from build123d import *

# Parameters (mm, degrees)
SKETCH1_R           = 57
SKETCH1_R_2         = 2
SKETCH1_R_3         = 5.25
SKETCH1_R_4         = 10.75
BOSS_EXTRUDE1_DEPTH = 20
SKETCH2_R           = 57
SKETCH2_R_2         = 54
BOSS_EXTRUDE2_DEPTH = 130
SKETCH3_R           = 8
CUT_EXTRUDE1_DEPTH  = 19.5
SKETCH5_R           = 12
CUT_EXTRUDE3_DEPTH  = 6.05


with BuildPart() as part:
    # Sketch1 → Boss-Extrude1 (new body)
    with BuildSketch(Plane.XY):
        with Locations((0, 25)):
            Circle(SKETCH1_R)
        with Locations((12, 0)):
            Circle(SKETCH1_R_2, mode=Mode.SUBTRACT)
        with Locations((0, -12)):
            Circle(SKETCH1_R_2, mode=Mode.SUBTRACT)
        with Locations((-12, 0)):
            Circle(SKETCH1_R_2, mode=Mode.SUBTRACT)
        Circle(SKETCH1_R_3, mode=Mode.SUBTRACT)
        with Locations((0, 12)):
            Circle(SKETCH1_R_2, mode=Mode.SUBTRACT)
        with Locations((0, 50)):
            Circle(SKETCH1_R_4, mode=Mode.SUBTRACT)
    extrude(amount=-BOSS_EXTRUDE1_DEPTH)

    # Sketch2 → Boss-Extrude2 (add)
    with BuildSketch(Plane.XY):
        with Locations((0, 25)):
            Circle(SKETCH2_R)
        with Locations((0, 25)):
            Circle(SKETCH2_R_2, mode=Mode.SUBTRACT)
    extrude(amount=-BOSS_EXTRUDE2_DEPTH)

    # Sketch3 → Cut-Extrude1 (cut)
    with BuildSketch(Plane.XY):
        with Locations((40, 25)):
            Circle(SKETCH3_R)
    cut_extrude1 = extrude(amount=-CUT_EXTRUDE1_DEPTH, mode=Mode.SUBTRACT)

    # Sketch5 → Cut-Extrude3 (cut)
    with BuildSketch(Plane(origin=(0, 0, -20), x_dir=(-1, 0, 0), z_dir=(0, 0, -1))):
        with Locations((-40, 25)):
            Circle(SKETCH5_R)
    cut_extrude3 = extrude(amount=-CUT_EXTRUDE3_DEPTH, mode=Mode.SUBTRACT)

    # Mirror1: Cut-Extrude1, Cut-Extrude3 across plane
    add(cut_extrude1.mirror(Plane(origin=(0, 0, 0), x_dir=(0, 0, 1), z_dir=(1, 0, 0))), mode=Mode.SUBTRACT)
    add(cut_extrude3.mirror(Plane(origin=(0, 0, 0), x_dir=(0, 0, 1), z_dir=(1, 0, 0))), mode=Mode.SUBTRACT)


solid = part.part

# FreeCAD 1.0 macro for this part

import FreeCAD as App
import Part
import Sketcher
from FreeCAD import Vector

doc = App.newDocument("Part")
body = doc.addObject("PartDesign::Body", "Body")

sketch1 = body.newObject("Sketcher::SketchObject", "Sketch")
sketch1.AttachmentSupport = (doc.getObject("XY_Plane"), [""])
sketch1.MapMode = "FlatFace"
sketch1.addGeometry([
    Part.Circle(Vector(0, 25, 0), Vector(0, 0, 1), 57),
    Part.Circle(Vector(-12, 0, 0), Vector(0, 0, 1), 2),
    Part.Circle(Vector(0, -12, 0), Vector(0, 0, 1), 2),
    Part.Circle(Vector(0, 0, 0), Vector(0, 0, 1), 5.2),
    Part.Circle(Vector(12, 0, 0), Vector(0, 0, 1), 2),
    Part.Circle(Vector(0, 12, 0), Vector(0, 0, 1), 2),
    Part.Circle(Vector(0, 50, 0), Vector(0, 0, 1), 10.8),
], False)
sketch1.addConstraint([
    Sketcher.Constraint("Coincident", 3, 3, -1, 1),
    Sketcher.Constraint("Equal", 1, 2),
    Sketcher.Constraint("Equal", 2, 4),
    Sketcher.Constraint("Equal", 4, 5),
    Sketcher.Constraint("Symmetric", 1, 3, 4, 3, -1, 1),
    Sketcher.Constraint("Symmetric", 2, 3, 5, 3, -1, 1),
    Sketcher.Constraint("PointOnObject", 0, 3, -2),
    Sketcher.Constraint("PointOnObject", 1, 3, -1),
    Sketcher.Constraint("PointOnObject", 2, 3, -2),
    Sketcher.Constraint("PointOnObject", 6, 3, -2),
    Sketcher.Constraint("Diameter", 0, 114.0),
    Sketcher.Constraint("Diameter", 1, 4.0),
    Sketcher.Constraint("Diameter", 3, 10.5),
    Sketcher.Constraint("Diameter", 6, 21.5),
    Sketcher.Constraint("DistanceY", -1, 1, 0, 3, 25.0),
    Sketcher.Constraint("DistanceX", 1, 3, -1, 1, 12.0),
    Sketcher.Constraint("DistanceY", 2, 3, -1, 1, 12.0),
    Sketcher.Constraint("DistanceY", -1, 1, 6, 3, 50.0),
])
pad1 = body.newObject("PartDesign::Pad", "Pad")
pad1.Profile = sketch1
pad1.Length = 20
pad1.Reversed = True

sketch2 = body.newObject("Sketcher::SketchObject", "Sketch001")
sketch2.AttachmentSupport = (doc.getObject("XY_Plane"), [""])
sketch2.MapMode = "FlatFace"
sketch2.addGeometry([
    Part.Circle(Vector(0, 25, 0), Vector(0, 0, 1), 57),
    Part.Circle(Vector(0, 25, 0), Vector(0, 0, 1), 54),
], False)
sketch2.addConstraint([
    Sketcher.Constraint("Coincident", 1, 3, 0, 3),
    Sketcher.Constraint("PointOnObject", 0, 3, -2),
    Sketcher.Constraint("Diameter", 0, 114.0),
    Sketcher.Constraint("Diameter", 1, 108.0),
    Sketcher.Constraint("DistanceY", -1, 1, 0, 3, 25.0),
])
pad2 = body.newObject("PartDesign::Pad", "Pad001")
pad2.Profile = sketch2
pad2.Length = 130
pad2.Reversed = True

sketch3 = body.newObject("Sketcher::SketchObject", "Sketch002")
sketch3.AttachmentSupport = (doc.getObject("XY_Plane"), [""])
sketch3.MapMode = "FlatFace"
sketch3.addGeometry(Part.Circle(Vector(40, 25, 0), Vector(0, 0, 1), 8), False)
sketch3.addConstraint([
    Sketcher.Constraint("Diameter", 0, 16.0),
    Sketcher.Constraint("DistanceX", -1, 1, 0, 3, 40.0),
    Sketcher.Constraint("DistanceY", -1, 1, 0, 3, 25.0),
])
pocket1 = body.newObject("PartDesign::Pocket", "Pocket")
pocket1.Profile = sketch3
pocket1.Length = 19.5

sketch4 = body.newObject("Sketcher::SketchObject", "Sketch003")
sketch4.AttachmentSupport = (doc.getObject("XY_Plane"), [""])
sketch4.MapMode = "FlatFace"
sketch4.AttachmentOffset = App.Placement(Vector(0, 0, -20), App.Rotation())
sketch4.addGeometry(Part.Circle(Vector(40, 25, 0), Vector(0, 0, 1), 12), False)
sketch4.addConstraint([
    Sketcher.Constraint("Diameter", 0, 24.0),
    Sketcher.Constraint("DistanceX", -1, 1, 0, 3, 40.0),
    Sketcher.Constraint("DistanceY", -1, 1, 0, 3, 25.0),
])
pocket2 = body.newObject("PartDesign::Pocket", "Pocket001")
pocket2.Profile = sketch4
pocket2.Length = 6.05
pocket2.Reversed = True
doc.recompute()

mirrored = body.newObject("PartDesign::Mirrored", "Mirrored")
mirrored.Originals = [pocket1, pocket2]
mirrored.MirrorPlane = (doc.getObject("YZ_Plane"), [""])
body.Tip = mirrored

doc.recompute()
